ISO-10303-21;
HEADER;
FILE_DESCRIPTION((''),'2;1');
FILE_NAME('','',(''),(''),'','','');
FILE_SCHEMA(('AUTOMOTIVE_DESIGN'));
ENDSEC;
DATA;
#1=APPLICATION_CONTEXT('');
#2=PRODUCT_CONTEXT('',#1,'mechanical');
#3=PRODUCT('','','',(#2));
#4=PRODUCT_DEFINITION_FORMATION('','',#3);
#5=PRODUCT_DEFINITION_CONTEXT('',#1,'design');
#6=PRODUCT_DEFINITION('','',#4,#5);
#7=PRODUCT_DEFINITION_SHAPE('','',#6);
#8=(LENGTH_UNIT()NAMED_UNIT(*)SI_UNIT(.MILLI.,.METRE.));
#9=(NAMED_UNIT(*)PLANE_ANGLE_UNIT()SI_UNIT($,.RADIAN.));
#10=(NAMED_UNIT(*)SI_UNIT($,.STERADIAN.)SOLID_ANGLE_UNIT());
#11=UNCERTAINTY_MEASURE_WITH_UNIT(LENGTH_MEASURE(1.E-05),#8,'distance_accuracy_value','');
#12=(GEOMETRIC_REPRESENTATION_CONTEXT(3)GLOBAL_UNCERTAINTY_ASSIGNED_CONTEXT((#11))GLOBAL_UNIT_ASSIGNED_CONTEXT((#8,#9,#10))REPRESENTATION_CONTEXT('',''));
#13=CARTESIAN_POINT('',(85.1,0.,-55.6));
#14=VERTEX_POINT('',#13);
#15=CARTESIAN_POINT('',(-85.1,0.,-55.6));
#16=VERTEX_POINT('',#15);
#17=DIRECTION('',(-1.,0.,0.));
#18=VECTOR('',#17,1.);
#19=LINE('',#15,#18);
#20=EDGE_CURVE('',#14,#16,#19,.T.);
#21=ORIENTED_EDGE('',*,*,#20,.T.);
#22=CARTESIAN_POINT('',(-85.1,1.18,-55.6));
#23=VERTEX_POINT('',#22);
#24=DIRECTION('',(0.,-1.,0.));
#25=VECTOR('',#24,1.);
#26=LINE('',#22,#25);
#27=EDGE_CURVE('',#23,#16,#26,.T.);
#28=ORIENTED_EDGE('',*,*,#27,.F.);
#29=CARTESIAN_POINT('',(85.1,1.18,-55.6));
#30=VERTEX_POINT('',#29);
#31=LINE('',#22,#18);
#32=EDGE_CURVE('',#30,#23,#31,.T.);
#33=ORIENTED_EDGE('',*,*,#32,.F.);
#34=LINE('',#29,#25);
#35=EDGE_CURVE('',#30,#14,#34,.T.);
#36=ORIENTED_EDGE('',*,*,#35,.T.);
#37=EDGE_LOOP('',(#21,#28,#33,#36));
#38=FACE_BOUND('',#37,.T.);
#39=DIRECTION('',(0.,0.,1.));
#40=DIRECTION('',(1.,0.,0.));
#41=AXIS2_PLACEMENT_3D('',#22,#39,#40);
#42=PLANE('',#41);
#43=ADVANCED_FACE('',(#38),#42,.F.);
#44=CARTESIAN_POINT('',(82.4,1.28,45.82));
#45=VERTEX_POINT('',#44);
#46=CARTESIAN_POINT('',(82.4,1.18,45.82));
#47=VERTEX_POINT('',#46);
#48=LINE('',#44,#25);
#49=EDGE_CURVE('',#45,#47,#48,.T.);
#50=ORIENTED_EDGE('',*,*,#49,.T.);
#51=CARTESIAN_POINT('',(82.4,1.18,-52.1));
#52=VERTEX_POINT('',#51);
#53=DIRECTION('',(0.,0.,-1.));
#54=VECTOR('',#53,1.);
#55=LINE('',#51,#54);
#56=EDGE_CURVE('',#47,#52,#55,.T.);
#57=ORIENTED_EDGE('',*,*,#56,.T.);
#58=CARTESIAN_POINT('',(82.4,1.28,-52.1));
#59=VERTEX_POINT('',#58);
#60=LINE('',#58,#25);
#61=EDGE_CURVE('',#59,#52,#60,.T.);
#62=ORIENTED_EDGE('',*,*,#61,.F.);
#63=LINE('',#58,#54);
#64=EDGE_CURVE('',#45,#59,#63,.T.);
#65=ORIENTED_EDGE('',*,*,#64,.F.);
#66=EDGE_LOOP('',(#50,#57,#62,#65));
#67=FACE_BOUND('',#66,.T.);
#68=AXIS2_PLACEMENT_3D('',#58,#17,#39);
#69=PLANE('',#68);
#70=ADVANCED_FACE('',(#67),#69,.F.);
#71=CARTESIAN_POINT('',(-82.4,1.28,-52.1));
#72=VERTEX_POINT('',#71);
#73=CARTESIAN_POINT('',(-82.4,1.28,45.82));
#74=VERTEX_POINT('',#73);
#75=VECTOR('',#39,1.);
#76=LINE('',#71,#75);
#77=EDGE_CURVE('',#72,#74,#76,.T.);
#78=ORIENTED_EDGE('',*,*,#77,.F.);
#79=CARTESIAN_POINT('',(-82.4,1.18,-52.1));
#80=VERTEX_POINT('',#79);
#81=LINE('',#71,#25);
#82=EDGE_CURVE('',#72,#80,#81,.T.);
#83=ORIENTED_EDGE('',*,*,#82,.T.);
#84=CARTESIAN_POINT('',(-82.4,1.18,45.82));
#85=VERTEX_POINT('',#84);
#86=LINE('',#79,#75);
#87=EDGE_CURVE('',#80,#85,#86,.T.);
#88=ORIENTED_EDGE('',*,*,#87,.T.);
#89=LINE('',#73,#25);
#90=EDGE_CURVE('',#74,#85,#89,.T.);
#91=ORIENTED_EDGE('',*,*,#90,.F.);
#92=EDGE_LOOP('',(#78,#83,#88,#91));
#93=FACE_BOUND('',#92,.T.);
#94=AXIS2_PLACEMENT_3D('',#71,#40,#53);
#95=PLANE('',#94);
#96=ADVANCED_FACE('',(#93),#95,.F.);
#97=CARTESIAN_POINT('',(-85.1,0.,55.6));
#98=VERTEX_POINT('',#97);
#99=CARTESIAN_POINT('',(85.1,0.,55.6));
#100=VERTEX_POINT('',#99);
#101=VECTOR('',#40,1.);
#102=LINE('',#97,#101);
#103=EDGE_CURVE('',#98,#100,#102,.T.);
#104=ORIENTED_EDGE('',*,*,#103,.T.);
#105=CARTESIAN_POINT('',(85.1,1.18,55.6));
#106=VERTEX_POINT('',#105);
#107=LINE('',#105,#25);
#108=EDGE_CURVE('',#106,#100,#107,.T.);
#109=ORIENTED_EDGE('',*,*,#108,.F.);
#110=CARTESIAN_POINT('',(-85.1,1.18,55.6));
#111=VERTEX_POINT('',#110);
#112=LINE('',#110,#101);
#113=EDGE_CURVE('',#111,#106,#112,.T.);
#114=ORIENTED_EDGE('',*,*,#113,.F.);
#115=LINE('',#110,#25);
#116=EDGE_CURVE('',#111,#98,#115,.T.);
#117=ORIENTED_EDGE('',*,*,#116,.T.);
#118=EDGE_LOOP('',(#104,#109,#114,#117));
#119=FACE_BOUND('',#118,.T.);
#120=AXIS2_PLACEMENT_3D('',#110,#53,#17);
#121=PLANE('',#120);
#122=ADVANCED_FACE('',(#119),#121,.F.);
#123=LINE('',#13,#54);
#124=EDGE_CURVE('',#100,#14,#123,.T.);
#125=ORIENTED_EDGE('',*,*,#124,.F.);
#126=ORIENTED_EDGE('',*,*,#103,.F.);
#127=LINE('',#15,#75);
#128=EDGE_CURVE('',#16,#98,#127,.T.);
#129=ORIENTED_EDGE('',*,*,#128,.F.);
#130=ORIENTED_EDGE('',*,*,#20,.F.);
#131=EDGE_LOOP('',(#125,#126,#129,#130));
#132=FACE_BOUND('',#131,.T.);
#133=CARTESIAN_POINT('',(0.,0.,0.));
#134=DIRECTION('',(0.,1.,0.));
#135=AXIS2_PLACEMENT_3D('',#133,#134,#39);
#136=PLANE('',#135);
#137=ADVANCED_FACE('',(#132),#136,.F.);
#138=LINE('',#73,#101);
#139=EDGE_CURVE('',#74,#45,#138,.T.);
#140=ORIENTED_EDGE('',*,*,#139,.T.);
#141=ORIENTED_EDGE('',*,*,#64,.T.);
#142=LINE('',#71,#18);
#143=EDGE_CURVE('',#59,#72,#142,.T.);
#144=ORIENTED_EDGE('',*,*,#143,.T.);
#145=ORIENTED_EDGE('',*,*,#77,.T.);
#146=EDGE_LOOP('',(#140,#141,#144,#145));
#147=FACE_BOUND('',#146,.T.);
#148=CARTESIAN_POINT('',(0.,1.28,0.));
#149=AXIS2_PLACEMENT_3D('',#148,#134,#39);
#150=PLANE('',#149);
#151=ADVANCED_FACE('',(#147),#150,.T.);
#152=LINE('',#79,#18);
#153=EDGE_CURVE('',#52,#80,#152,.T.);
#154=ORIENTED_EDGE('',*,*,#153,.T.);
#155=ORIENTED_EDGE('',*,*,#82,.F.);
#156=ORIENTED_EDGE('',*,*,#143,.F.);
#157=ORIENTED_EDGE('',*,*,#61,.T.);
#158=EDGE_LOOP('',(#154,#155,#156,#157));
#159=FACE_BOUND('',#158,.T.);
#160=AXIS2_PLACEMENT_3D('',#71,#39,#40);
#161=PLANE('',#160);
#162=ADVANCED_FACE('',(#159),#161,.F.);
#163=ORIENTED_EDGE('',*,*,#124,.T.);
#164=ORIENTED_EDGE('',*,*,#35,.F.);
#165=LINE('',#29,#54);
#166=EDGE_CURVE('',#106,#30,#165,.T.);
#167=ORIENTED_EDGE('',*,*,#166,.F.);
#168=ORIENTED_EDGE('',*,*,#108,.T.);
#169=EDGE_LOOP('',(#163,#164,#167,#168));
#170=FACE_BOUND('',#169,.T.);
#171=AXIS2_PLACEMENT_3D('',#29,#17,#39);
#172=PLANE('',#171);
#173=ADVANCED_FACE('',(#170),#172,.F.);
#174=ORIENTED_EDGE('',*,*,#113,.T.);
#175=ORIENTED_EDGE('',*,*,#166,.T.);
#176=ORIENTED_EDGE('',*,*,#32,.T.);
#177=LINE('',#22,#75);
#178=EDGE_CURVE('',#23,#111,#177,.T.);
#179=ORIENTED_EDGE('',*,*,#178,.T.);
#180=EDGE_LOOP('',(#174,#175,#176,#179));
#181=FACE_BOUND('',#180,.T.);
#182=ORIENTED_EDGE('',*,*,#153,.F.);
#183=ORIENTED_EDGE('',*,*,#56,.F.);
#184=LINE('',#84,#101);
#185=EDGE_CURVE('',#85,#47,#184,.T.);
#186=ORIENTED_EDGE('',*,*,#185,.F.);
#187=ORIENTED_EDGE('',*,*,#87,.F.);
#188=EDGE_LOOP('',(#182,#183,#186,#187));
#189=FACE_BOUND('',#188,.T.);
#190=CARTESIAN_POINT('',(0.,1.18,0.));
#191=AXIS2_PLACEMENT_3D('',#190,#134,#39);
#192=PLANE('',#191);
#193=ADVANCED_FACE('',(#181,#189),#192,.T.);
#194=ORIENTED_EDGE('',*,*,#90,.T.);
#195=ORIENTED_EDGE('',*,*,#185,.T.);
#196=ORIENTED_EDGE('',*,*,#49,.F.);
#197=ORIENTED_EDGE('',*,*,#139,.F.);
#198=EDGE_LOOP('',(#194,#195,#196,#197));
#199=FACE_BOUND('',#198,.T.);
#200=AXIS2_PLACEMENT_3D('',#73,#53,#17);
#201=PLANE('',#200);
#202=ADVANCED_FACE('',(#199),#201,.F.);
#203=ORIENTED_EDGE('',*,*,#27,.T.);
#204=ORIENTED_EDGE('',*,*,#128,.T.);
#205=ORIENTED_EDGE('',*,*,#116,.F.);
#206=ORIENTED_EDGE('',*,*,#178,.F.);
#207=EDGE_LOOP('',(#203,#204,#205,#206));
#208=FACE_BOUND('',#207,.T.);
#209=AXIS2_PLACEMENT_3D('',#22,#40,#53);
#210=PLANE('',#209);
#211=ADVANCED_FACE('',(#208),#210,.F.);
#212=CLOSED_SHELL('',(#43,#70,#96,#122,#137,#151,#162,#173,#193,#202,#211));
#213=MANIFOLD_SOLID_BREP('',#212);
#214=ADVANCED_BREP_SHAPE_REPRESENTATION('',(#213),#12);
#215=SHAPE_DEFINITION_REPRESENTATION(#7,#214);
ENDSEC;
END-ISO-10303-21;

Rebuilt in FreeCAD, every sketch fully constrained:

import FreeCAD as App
import Part
import Sketcher
from FreeCAD import Vector

doc = App.newDocument("Part")
body = doc.addObject("PartDesign::Body", "Body")

sketch1 = doc.addObject("Sketcher::SketchObject", "Sketch")
body.addObject(sketch1)
sketch1.AttachmentSupport = (doc.XZ_Plane, [""])
sketch1.MapMode = "FlatFace"
sketch1.addGeometry([
    Part.LineSegment(Vector(-85.1, -55.6, 0), Vector(-85.1, 55.6, 0)),
    Part.LineSegment(Vector(-85.1, 55.6, 0), Vector(85.1, 55.6, 0)),
    Part.LineSegment(Vector(85.1, 55.6, 0), Vector(85.1, -55.6, 0)),
    Part.LineSegment(Vector(85.1, -55.6, 0), Vector(-85.1, -55.6, 0)),
], False)
sketch1.addConstraint([
    Sketcher.Constraint("Coincident", 0, 2, 1, 1),
    Sketcher.Constraint("Coincident", 1, 2, 2, 1),
    Sketcher.Constraint("Coincident", 2, 2, 3, 1),
    Sketcher.Constraint("Coincident", 3, 2, 0, 1),
    Sketcher.Constraint("Vertical", 0),
    Sketcher.Constraint("Horizontal", 1),
    Sketcher.Constraint("Vertical", 2),
    Sketcher.Constraint("Horizontal", 3),
    Sketcher.Constraint("Symmetric", 0, 2, 2, 2, -1, 1),
    Sketcher.Constraint("DistanceX", 1, 1, 1, 2, 170.2),
    Sketcher.Constraint("DistanceY", 0, 1, 0, 2, 111.2),
])
pad1 = doc.addObject("PartDesign::Pad", "Pad")
body.addObject(pad1)
pad1.Profile = sketch1
pad1.Length = 1.18
pad1.Reversed = True

sketch2 = doc.addObject("Sketcher::SketchObject", "Sketch001")
body.addObject(sketch2)
sketch2.AttachmentSupport = (doc.XZ_Plane, [""])
sketch2.MapMode = "FlatFace"
sketch2.AttachmentOffset = App.Placement(Vector(0, 0, -1.18), App.Rotation())
sketch2.addGeometry([
    Part.LineSegment(Vector(-82.4, -52.1, 0), Vector(-82.4, 45.82, 0)),
    Part.LineSegment(Vector(-82.4, 45.82, 0), Vector(82.4, 45.82, 0)),
    Part.LineSegment(Vector(82.4, 45.82, 0), Vector(82.4, -52.1, 0)),
    Part.LineSegment(Vector(82.4, -52.1, 0), Vector(-82.4, -52.1, 0)),
], False)
sketch2.addConstraint([
    Sketcher.Constraint("Coincident", 0, 2, 1, 1),
    Sketcher.Constraint("Coincident", 1, 2, 2, 1),
    Sketcher.Constraint("Coincident", 2, 2, 3, 1),
    Sketcher.Constraint("Coincident", 3, 2, 0, 1),
    Sketcher.Constraint("Vertical", 0),
    Sketcher.Constraint("Horizontal", 1),
    Sketcher.Constraint("Vertical", 2),
    Sketcher.Constraint("Horizontal", 3),
    Sketcher.Constraint("DistanceX", 1, 1, 1, 2, 164.8),
    Sketcher.Constraint("DistanceY", 0, 1, 0, 2, 97.92),
    Sketcher.Constraint("DistanceX", 0, 2, -1, 1, 82.4),
    Sketcher.Constraint("DistanceY", 2, 2, -1, 1, 52.1),
])
pad2 = doc.addObject("PartDesign::Pad", "Pad001")
body.addObject(pad2)
pad2.Profile = sketch2
pad2.Length = 0.1
pad2.Reversed = True

doc.recompute()
